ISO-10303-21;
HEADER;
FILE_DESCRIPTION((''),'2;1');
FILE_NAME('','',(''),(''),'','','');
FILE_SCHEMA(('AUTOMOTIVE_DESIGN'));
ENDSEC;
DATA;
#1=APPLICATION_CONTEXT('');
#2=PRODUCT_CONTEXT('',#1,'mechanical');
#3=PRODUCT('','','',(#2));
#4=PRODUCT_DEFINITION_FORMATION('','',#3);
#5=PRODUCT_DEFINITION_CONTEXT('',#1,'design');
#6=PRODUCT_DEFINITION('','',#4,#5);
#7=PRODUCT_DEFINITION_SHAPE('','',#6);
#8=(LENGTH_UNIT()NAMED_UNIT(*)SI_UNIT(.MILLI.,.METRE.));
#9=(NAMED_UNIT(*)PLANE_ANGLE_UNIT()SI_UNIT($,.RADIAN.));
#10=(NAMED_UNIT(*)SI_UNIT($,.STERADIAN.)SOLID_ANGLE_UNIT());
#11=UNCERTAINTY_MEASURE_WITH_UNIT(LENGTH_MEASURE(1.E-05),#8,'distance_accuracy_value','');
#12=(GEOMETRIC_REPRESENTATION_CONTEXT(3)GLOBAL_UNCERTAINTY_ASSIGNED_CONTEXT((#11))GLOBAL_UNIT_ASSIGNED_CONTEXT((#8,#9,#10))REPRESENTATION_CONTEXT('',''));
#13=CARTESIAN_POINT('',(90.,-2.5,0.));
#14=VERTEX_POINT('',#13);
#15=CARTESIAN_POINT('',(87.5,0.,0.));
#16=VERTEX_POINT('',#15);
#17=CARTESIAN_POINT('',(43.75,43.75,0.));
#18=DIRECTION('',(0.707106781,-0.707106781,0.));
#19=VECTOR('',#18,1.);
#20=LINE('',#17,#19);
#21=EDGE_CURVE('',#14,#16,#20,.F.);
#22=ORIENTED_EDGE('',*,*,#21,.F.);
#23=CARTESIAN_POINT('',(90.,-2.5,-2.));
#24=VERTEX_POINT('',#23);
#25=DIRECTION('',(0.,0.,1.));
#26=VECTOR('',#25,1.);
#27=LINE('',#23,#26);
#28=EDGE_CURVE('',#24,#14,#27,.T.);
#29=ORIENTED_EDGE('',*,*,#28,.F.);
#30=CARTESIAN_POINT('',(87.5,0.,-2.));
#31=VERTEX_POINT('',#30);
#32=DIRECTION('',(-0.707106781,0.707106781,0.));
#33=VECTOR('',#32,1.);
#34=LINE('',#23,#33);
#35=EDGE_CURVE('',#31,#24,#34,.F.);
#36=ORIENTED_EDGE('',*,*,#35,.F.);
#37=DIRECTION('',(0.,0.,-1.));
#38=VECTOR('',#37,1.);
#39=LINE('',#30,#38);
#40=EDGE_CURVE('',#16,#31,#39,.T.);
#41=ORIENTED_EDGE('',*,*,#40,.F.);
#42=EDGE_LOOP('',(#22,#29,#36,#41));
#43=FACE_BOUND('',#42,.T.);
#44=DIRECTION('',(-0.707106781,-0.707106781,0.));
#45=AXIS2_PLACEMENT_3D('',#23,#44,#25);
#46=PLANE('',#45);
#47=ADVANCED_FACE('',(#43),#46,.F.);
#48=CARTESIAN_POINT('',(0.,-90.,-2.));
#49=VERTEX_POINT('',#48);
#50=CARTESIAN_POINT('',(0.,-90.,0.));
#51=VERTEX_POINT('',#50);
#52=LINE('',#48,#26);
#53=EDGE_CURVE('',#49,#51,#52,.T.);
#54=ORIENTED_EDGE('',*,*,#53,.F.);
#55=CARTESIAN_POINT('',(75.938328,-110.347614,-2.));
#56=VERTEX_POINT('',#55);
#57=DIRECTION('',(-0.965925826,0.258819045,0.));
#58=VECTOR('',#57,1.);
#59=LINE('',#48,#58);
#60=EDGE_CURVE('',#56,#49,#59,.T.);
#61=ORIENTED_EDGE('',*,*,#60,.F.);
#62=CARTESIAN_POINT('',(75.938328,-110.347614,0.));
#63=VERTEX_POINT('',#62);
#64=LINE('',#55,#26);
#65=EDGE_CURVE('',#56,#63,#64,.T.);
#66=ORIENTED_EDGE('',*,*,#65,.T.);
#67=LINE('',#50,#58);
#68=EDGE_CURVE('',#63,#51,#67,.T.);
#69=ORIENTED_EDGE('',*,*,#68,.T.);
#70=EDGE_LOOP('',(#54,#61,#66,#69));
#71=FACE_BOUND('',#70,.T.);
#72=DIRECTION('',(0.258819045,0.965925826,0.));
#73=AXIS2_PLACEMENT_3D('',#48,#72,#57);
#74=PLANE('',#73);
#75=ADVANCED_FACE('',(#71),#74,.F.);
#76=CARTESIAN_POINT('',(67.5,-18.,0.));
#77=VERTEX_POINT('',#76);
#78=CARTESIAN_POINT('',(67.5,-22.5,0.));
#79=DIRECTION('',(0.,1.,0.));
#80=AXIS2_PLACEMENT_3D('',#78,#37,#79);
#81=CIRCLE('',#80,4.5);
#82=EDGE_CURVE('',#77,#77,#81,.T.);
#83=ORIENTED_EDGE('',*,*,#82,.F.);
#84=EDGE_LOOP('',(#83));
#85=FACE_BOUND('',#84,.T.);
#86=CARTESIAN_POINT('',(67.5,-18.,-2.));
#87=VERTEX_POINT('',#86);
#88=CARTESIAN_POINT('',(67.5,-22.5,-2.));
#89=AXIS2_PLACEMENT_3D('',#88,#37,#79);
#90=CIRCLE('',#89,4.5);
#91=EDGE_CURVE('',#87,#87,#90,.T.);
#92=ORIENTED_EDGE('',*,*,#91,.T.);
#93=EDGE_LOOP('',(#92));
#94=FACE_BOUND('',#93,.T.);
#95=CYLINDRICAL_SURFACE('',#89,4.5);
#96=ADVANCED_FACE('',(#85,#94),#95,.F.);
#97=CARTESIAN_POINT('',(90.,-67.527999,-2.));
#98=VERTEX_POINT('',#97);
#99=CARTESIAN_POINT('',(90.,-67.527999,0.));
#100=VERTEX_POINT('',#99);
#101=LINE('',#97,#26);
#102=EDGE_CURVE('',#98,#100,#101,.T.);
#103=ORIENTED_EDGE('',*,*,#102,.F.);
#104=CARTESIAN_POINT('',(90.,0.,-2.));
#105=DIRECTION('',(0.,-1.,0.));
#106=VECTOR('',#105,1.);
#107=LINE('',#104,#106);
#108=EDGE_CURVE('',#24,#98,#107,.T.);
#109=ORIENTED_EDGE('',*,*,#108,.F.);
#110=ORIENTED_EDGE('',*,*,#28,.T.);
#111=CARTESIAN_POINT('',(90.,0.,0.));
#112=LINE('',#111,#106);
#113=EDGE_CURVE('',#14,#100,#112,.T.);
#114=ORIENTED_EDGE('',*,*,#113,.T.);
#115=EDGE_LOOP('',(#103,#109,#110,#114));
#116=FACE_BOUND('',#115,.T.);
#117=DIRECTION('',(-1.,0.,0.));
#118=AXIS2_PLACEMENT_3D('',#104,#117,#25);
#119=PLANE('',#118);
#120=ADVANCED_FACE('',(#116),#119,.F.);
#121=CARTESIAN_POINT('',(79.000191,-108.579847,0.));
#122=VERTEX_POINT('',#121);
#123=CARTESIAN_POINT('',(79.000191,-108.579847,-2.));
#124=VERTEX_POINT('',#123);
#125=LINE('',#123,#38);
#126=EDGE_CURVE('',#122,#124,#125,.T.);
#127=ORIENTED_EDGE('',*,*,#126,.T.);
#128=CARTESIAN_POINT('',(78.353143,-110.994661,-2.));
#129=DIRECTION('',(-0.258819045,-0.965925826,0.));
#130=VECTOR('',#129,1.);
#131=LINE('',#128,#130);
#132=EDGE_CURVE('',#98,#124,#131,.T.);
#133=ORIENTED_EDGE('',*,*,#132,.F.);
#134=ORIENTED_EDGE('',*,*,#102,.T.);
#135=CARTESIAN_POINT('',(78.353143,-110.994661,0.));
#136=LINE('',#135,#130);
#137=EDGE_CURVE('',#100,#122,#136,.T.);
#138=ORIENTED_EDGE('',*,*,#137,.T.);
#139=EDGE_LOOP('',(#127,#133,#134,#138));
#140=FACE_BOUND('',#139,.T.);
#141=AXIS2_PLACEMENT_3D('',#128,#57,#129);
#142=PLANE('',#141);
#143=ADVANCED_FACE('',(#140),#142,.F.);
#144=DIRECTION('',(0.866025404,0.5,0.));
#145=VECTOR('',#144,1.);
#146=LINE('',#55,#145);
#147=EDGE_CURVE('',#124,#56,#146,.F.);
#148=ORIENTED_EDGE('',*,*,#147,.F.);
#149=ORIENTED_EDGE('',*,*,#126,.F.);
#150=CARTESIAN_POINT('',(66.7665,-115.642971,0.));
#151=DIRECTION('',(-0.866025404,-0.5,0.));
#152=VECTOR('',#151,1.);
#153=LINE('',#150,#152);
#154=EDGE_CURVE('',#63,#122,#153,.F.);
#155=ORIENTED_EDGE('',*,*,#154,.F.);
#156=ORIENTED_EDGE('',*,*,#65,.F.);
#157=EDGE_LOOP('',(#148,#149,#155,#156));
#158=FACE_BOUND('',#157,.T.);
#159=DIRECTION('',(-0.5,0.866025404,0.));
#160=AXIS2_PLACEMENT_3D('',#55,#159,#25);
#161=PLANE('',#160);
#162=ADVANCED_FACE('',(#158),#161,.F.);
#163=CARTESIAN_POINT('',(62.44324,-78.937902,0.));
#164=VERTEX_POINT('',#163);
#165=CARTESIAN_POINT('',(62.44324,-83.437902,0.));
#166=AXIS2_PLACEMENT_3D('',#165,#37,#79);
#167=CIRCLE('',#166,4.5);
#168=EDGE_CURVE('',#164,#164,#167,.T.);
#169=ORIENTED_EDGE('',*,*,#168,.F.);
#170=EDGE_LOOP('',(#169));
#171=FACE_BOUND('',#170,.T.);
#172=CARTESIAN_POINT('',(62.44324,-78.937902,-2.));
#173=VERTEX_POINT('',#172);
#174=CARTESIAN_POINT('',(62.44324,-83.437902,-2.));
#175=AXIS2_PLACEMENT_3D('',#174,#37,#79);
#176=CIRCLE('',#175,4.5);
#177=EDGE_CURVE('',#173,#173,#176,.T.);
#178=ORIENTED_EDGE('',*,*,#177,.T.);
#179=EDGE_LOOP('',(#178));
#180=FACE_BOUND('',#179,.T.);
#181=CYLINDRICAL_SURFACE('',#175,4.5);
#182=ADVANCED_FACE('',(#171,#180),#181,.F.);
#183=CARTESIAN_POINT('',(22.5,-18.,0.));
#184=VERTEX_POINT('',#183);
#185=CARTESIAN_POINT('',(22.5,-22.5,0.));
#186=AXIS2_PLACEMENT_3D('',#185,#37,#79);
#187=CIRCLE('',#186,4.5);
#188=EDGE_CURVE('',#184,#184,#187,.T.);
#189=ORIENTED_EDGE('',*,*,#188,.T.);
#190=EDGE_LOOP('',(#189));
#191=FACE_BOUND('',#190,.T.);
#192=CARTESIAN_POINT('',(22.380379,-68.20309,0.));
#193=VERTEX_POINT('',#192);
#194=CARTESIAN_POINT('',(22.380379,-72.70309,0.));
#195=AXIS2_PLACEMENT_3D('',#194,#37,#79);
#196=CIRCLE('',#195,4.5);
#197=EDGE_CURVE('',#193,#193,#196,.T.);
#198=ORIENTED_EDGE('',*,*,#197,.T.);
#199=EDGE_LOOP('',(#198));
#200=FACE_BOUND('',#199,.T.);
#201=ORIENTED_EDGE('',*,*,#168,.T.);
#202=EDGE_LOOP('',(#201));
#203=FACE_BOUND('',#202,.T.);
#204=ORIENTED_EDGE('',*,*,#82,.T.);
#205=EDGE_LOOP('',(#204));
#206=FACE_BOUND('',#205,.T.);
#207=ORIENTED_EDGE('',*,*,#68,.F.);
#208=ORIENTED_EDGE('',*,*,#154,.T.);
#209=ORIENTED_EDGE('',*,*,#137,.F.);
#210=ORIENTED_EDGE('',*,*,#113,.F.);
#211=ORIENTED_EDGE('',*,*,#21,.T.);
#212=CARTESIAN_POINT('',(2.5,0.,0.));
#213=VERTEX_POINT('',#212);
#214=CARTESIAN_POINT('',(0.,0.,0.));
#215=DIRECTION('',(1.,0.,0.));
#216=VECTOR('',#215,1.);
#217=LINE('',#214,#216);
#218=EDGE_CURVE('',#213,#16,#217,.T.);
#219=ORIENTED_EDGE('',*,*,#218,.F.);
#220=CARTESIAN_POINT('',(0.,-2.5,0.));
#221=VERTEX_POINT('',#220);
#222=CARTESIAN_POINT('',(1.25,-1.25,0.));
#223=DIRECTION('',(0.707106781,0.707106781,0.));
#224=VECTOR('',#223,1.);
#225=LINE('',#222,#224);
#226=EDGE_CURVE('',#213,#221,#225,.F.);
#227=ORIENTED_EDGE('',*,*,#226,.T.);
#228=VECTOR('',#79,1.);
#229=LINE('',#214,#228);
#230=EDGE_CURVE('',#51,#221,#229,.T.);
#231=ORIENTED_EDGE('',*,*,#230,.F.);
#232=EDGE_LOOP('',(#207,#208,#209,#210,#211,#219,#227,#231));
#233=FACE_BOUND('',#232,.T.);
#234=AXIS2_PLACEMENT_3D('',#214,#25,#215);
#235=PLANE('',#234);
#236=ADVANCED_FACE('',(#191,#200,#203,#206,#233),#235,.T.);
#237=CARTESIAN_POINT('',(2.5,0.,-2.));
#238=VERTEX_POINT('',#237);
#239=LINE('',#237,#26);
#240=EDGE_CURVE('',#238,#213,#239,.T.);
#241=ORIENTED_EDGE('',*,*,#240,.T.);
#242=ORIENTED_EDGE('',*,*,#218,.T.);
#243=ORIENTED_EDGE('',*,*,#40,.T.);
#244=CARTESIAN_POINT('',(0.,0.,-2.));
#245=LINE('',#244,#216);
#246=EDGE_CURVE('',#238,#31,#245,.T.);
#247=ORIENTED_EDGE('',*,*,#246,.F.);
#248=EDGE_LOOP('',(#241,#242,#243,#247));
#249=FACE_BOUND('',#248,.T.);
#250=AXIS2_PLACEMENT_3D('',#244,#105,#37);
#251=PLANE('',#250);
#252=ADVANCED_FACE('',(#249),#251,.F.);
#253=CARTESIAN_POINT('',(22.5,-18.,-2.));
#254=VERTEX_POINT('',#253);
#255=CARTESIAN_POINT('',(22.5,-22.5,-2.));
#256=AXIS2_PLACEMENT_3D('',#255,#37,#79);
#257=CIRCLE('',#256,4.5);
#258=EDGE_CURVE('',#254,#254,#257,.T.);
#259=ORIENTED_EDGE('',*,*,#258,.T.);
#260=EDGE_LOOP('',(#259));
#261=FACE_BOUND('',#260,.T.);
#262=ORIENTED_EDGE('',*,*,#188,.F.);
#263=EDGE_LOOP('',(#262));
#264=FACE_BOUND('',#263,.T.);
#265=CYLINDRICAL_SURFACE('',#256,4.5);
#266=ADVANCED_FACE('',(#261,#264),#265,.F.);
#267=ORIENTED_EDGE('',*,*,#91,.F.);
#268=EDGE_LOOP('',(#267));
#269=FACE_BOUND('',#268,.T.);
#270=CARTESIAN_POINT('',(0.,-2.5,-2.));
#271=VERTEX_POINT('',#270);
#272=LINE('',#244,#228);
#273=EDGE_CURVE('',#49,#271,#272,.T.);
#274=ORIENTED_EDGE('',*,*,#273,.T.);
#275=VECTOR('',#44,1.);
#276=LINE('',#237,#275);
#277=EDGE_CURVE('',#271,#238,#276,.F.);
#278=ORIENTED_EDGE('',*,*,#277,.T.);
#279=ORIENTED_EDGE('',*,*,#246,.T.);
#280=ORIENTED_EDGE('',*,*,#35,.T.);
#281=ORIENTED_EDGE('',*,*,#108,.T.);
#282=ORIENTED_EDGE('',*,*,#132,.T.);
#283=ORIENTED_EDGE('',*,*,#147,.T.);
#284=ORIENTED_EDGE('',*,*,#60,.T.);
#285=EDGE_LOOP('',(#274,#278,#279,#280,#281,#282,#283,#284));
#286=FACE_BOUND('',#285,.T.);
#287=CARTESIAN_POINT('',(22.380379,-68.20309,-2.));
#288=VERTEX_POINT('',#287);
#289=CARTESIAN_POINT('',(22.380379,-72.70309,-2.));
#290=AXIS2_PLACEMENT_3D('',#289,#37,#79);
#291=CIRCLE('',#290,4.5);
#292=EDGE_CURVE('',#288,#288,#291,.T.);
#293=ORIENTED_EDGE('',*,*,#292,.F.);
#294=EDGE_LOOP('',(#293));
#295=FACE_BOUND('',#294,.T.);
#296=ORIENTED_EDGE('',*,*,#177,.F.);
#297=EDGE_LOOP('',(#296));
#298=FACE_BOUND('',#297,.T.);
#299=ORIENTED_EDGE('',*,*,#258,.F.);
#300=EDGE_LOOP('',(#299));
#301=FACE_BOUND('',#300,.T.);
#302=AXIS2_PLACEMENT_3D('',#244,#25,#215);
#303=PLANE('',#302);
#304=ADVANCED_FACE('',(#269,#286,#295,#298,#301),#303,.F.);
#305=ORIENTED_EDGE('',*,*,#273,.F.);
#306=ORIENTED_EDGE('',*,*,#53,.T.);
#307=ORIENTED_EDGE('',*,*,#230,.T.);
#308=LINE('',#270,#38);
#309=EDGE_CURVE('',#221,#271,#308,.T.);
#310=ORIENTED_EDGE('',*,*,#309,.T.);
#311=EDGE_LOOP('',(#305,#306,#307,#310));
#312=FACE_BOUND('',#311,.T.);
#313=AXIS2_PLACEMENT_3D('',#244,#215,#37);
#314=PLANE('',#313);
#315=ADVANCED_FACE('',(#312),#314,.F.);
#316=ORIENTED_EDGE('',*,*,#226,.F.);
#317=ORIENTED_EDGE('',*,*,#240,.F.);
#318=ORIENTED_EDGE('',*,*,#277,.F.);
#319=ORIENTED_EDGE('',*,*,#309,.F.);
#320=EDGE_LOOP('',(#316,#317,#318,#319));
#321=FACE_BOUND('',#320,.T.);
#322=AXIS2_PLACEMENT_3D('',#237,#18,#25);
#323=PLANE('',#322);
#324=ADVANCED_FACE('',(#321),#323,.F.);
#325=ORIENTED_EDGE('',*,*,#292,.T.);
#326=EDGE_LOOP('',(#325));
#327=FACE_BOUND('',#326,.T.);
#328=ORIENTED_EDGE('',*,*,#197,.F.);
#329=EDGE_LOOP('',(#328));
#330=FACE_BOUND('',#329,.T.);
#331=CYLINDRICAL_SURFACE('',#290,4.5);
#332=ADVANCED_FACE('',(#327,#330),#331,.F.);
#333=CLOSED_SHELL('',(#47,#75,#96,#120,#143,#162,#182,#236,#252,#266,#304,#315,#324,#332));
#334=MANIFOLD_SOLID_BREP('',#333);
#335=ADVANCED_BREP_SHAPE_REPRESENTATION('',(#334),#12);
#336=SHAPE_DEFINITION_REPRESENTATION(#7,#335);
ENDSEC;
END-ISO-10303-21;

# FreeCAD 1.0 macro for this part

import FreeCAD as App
import Part
import Sketcher
Q = App.Units.Quantity


def edges_at(feature, points):
    """Names of the edges that pass closest to the given points."""
    edges = feature.Shape.Edges
    near = lambda p: min(range(len(edges)), key=lambda i: edges[i].distToShape(Part.Vertex(*p))[0])
    return sorted({f"Edge{near(p) + 1}" for p in points})

doc = App.newDocument("Part")
body = doc.addObject("PartDesign::Body", "Body")

# Sketch on XY plane
sketch1 = body.newObject("Sketcher::SketchObject", "Sketch")
sketch1.AttachmentSupport = (doc.getObject("XY_Plane"), [""])
sketch1.MapMode = "FlatFace"
sketch1.addGeometry([
    Part.LineSegment(App.Vector(0, 0, 0), App.Vector(90, 0, 0)),  # 0
    Part.LineSegment(App.Vector(90, 0, 0), App.Vector(90, -68, 0)),  # 1
    Part.LineSegment(App.Vector(90, -68, 0), App.Vector(78, -111, 0)),  # 2
    Part.LineSegment(App.Vector(78, -111, 0), App.Vector(0, -90, 0)),  # 3
    Part.LineSegment(App.Vector(0, -90, 0), App.Vector(0, 0, 0)),  # 4
], False)
sketch1.addConstraint([
    Sketcher.Constraint("Coincident", 0, 2, 1, 1),
    Sketcher.Constraint("Coincident", 1, 2, 2, 1),
    Sketcher.Constraint("Coincident", 2, 2, 3, 1),
    Sketcher.Constraint("Coincident", 3, 2, 4, 1),
    Sketcher.Constraint("Coincident", 4, 2, 0, 1),
    Sketcher.Constraint("Horizontal", 0),
    Sketcher.Constraint("Vertical", 1),
    Sketcher.Constraint("Vertical", 4),
    Sketcher.Constraint("Coincident", 4, 2, -1, 1),
    Sketcher.Constraint("Perpendicular", 2, 3),
    Sketcher.Constraint("Equal", 0, 4),
    Sketcher.Constraint("DistanceX", 0, 1, 0, 2, Q("90 mm")),
    Sketcher.Constraint("Angle", 2, Q("-105 deg")),
    Sketcher.Constraint("Distance", 2, Q("45 mm")),
])
pad1 = body.newObject("PartDesign::Pad", "Pad")
pad1.Profile = sketch1
pad1.Length = 2
pad1.Reversed = True

# Sketch on XY plane
sketch2 = body.newObject("Sketcher::SketchObject", "Sketch001")
sketch2.AttachmentSupport = (doc.getObject("XY_Plane"), [""])
sketch2.MapMode = "FlatFace"
sketch2.AttachmentOffset = App.Placement(App.Vector(0, 0, -2), App.Rotation())
sketch2.addGeometry([
    Part.Circle(App.Vector(67.5, -22.5, 0), App.Vector(0, 0, 1), 4.5),
    Part.Circle(App.Vector(22.4, -72.7, 0), App.Vector(0, 0, 1), 4.5),
    Part.Circle(App.Vector(62.4, -83.4, 0), App.Vector(0, 0, 1), 4.5),
    Part.Circle(App.Vector(22.5, -22.5, 0), App.Vector(0, 0, 1), 4.5),
], False)
sketch2.addConstraint([
    Sketcher.Constraint("Equal", 0, 1),
    Sketcher.Constraint("Equal", 1, 2),
    Sketcher.Constraint("Equal", 2, 3),
    Sketcher.Constraint("Horizontal", 0, 3, 3, 3),
    Sketcher.Constraint("Diameter", 0, Q("9 mm")),
    Sketcher.Constraint("DistanceX", 3, 3, 0, 3, Q("45 mm")),
    Sketcher.Constraint("DistanceX", -1, 1, 0, 3, Q("67.5 mm")),
    Sketcher.Constraint("DistanceY", 0, 3, -1, 1, Q("22.5 mm")),
    Sketcher.Constraint("DistanceY", 2, 3, -1, 1, Q("83.437902 mm")),
    Sketcher.Constraint("DistanceX", -1, 1, 1, 3, Q("22.380379 mm")),
    Sketcher.Constraint("DistanceY", 1, 3, -1, 1, Q("72.70309 mm")),
    Sketcher.Constraint("DistanceX", -1, 1, 2, 3, Q("62.44324 mm")),
])
doc.recompute()
hole = body.newObject("PartDesign::Hole", "Hole")
hole.Profile = sketch2
hole.ThreadType = "None"
hole.Diameter = 9
hole.DepthType = "ThroughAll"
hole.Reversed = True
doc.recompute()

chamfer = body.newObject("PartDesign::Chamfer", "Chamfer")
chamfer.Base = (hole, edges_at(hole, [(78.353, -110.995, -1), (90, 0, -1), (0, 0, -1)]))
chamfer.Size = 2.5

doc.recompute()
